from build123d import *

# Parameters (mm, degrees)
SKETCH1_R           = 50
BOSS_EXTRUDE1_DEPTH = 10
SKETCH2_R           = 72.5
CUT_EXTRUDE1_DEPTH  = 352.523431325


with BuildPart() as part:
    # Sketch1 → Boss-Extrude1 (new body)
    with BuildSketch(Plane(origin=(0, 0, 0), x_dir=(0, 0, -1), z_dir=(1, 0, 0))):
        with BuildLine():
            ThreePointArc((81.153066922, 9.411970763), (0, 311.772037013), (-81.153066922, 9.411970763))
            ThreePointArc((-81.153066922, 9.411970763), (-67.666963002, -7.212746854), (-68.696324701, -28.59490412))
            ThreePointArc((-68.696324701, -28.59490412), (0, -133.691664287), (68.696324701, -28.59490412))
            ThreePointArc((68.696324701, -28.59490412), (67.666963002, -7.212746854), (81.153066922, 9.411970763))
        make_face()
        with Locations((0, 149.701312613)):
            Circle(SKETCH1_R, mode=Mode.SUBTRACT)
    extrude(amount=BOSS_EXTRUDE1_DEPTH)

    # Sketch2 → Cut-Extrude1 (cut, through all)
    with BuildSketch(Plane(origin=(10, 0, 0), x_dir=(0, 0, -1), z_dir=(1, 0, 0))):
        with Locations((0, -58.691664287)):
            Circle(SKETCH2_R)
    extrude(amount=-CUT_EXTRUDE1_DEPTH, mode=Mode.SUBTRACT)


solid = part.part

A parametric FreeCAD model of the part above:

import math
import FreeCAD as App
import Part
import Sketcher

doc = App.newDocument("Part")
body = doc.addObject("PartDesign::Body", "Body")

# Sketch on YZ plane
sketch1 = body.newObject("Sketcher::SketchObject", "Sketch")
sketch1.AttachmentSupport = (doc.getObject("YZ_Plane"), [""])
sketch1.MapMode = "FlatFace"
sketch1.addGeometry(Part.ArcOfCircle(Part.Circle(App.Vector(150, 0, 0), App.Vector(0, 0, 1), 162), math.radians(-150), math.radians(150)), False)
sketch1.addGeometry(Part.ArcOfCircle(Part.Circle(App.Vector(-17, 96, 0), App.Vector(0, 0, 1), 30), math.radians(-114), math.radians(-30)), False)
sketch1.addGeometry(Part.ArcOfCircle(Part.Circle(App.Vector(-59, 0, 0), App.Vector(0, 0, 1), 75), math.radians(66), math.radians(294)), False)
sketch1.addGeometry(Part.ArcOfCircle(Part.Circle(App.Vector(-17, -96, 0), App.Vector(0, 0, 1), 30), math.radians(30), math.radians(114)), False)
sketch1.addGeometry(Part.Circle(App.Vector(150, 0, 0), App.Vector(0, 0, 1), 50), False)
sketch1.addConstraint(Sketcher.Constraint("Tangent", 0, 2, 1, 2))
sketch1.addConstraint(Sketcher.Constraint("Tangent", 1, 1, 2, 1))
sketch1.addConstraint(Sketcher.Constraint("Tangent", 2, 2, 3, 2))
sketch1.addConstraint(Sketcher.Constraint("Tangent", 3, 1, 0, 1))
sketch1.addConstraint(Sketcher.Constraint("Coincident", 4, 3, 0, 3))
sketch1.addConstraint(Sketcher.Constraint("Equal", 1, 3))
sketch1.addConstraint(Sketcher.Constraint("Symmetric", 1, 3, 3, 3, -1))
sketch1.addConstraint(Sketcher.Constraint("Diameter", 4, 100.0))
sketch1.addConstraint(Sketcher.Constraint("Radius", 1, 30.0))
sketch1.addConstraint(Sketcher.Constraint("Radius", 2, 75.0))
sketch1.addConstraint(Sketcher.Constraint("Radius", 0, 162.070724))
sketch1.addConstraint(Sketcher.Constraint("DistanceX", 1, 3, -1, 1, 16.5562))
sketch1.addConstraint(Sketcher.Constraint("DistanceX", -1, 1, 3, 1, 9.411971))
pad1 = body.newObject("PartDesign::Pad", "Pad")
pad1.Profile = sketch1
pad1.Length = 10

# Sketch on YZ plane
sketch2 = body.newObject("Sketcher::SketchObject", "Sketch001")
sketch2.AttachmentSupport = (doc.getObject("YZ_Plane"), [""])
sketch2.MapMode = "FlatFace"
sketch2.AttachmentOffset = App.Placement(App.Vector(0, 0, 10), App.Rotation())
sketch2.addGeometry(Part.Circle(App.Vector(-59, 0, 0), App.Vector(0, 0, 1), 72), False)
sketch2.addConstraint(Sketcher.Constraint("PointOnObject", 0, 3, -1))
sketch2.addConstraint(Sketcher.Constraint("Diameter", 0, 145.0))
sketch2.addConstraint(Sketcher.Constraint("DistanceX", 0, 3, -1, 1, 58.691664))
pocket1 = body.newObject("PartDesign::Pocket", "Pocket")
pocket1.Profile = sketch2
pocket1.Type = "ThroughAll"

doc.recompute()
